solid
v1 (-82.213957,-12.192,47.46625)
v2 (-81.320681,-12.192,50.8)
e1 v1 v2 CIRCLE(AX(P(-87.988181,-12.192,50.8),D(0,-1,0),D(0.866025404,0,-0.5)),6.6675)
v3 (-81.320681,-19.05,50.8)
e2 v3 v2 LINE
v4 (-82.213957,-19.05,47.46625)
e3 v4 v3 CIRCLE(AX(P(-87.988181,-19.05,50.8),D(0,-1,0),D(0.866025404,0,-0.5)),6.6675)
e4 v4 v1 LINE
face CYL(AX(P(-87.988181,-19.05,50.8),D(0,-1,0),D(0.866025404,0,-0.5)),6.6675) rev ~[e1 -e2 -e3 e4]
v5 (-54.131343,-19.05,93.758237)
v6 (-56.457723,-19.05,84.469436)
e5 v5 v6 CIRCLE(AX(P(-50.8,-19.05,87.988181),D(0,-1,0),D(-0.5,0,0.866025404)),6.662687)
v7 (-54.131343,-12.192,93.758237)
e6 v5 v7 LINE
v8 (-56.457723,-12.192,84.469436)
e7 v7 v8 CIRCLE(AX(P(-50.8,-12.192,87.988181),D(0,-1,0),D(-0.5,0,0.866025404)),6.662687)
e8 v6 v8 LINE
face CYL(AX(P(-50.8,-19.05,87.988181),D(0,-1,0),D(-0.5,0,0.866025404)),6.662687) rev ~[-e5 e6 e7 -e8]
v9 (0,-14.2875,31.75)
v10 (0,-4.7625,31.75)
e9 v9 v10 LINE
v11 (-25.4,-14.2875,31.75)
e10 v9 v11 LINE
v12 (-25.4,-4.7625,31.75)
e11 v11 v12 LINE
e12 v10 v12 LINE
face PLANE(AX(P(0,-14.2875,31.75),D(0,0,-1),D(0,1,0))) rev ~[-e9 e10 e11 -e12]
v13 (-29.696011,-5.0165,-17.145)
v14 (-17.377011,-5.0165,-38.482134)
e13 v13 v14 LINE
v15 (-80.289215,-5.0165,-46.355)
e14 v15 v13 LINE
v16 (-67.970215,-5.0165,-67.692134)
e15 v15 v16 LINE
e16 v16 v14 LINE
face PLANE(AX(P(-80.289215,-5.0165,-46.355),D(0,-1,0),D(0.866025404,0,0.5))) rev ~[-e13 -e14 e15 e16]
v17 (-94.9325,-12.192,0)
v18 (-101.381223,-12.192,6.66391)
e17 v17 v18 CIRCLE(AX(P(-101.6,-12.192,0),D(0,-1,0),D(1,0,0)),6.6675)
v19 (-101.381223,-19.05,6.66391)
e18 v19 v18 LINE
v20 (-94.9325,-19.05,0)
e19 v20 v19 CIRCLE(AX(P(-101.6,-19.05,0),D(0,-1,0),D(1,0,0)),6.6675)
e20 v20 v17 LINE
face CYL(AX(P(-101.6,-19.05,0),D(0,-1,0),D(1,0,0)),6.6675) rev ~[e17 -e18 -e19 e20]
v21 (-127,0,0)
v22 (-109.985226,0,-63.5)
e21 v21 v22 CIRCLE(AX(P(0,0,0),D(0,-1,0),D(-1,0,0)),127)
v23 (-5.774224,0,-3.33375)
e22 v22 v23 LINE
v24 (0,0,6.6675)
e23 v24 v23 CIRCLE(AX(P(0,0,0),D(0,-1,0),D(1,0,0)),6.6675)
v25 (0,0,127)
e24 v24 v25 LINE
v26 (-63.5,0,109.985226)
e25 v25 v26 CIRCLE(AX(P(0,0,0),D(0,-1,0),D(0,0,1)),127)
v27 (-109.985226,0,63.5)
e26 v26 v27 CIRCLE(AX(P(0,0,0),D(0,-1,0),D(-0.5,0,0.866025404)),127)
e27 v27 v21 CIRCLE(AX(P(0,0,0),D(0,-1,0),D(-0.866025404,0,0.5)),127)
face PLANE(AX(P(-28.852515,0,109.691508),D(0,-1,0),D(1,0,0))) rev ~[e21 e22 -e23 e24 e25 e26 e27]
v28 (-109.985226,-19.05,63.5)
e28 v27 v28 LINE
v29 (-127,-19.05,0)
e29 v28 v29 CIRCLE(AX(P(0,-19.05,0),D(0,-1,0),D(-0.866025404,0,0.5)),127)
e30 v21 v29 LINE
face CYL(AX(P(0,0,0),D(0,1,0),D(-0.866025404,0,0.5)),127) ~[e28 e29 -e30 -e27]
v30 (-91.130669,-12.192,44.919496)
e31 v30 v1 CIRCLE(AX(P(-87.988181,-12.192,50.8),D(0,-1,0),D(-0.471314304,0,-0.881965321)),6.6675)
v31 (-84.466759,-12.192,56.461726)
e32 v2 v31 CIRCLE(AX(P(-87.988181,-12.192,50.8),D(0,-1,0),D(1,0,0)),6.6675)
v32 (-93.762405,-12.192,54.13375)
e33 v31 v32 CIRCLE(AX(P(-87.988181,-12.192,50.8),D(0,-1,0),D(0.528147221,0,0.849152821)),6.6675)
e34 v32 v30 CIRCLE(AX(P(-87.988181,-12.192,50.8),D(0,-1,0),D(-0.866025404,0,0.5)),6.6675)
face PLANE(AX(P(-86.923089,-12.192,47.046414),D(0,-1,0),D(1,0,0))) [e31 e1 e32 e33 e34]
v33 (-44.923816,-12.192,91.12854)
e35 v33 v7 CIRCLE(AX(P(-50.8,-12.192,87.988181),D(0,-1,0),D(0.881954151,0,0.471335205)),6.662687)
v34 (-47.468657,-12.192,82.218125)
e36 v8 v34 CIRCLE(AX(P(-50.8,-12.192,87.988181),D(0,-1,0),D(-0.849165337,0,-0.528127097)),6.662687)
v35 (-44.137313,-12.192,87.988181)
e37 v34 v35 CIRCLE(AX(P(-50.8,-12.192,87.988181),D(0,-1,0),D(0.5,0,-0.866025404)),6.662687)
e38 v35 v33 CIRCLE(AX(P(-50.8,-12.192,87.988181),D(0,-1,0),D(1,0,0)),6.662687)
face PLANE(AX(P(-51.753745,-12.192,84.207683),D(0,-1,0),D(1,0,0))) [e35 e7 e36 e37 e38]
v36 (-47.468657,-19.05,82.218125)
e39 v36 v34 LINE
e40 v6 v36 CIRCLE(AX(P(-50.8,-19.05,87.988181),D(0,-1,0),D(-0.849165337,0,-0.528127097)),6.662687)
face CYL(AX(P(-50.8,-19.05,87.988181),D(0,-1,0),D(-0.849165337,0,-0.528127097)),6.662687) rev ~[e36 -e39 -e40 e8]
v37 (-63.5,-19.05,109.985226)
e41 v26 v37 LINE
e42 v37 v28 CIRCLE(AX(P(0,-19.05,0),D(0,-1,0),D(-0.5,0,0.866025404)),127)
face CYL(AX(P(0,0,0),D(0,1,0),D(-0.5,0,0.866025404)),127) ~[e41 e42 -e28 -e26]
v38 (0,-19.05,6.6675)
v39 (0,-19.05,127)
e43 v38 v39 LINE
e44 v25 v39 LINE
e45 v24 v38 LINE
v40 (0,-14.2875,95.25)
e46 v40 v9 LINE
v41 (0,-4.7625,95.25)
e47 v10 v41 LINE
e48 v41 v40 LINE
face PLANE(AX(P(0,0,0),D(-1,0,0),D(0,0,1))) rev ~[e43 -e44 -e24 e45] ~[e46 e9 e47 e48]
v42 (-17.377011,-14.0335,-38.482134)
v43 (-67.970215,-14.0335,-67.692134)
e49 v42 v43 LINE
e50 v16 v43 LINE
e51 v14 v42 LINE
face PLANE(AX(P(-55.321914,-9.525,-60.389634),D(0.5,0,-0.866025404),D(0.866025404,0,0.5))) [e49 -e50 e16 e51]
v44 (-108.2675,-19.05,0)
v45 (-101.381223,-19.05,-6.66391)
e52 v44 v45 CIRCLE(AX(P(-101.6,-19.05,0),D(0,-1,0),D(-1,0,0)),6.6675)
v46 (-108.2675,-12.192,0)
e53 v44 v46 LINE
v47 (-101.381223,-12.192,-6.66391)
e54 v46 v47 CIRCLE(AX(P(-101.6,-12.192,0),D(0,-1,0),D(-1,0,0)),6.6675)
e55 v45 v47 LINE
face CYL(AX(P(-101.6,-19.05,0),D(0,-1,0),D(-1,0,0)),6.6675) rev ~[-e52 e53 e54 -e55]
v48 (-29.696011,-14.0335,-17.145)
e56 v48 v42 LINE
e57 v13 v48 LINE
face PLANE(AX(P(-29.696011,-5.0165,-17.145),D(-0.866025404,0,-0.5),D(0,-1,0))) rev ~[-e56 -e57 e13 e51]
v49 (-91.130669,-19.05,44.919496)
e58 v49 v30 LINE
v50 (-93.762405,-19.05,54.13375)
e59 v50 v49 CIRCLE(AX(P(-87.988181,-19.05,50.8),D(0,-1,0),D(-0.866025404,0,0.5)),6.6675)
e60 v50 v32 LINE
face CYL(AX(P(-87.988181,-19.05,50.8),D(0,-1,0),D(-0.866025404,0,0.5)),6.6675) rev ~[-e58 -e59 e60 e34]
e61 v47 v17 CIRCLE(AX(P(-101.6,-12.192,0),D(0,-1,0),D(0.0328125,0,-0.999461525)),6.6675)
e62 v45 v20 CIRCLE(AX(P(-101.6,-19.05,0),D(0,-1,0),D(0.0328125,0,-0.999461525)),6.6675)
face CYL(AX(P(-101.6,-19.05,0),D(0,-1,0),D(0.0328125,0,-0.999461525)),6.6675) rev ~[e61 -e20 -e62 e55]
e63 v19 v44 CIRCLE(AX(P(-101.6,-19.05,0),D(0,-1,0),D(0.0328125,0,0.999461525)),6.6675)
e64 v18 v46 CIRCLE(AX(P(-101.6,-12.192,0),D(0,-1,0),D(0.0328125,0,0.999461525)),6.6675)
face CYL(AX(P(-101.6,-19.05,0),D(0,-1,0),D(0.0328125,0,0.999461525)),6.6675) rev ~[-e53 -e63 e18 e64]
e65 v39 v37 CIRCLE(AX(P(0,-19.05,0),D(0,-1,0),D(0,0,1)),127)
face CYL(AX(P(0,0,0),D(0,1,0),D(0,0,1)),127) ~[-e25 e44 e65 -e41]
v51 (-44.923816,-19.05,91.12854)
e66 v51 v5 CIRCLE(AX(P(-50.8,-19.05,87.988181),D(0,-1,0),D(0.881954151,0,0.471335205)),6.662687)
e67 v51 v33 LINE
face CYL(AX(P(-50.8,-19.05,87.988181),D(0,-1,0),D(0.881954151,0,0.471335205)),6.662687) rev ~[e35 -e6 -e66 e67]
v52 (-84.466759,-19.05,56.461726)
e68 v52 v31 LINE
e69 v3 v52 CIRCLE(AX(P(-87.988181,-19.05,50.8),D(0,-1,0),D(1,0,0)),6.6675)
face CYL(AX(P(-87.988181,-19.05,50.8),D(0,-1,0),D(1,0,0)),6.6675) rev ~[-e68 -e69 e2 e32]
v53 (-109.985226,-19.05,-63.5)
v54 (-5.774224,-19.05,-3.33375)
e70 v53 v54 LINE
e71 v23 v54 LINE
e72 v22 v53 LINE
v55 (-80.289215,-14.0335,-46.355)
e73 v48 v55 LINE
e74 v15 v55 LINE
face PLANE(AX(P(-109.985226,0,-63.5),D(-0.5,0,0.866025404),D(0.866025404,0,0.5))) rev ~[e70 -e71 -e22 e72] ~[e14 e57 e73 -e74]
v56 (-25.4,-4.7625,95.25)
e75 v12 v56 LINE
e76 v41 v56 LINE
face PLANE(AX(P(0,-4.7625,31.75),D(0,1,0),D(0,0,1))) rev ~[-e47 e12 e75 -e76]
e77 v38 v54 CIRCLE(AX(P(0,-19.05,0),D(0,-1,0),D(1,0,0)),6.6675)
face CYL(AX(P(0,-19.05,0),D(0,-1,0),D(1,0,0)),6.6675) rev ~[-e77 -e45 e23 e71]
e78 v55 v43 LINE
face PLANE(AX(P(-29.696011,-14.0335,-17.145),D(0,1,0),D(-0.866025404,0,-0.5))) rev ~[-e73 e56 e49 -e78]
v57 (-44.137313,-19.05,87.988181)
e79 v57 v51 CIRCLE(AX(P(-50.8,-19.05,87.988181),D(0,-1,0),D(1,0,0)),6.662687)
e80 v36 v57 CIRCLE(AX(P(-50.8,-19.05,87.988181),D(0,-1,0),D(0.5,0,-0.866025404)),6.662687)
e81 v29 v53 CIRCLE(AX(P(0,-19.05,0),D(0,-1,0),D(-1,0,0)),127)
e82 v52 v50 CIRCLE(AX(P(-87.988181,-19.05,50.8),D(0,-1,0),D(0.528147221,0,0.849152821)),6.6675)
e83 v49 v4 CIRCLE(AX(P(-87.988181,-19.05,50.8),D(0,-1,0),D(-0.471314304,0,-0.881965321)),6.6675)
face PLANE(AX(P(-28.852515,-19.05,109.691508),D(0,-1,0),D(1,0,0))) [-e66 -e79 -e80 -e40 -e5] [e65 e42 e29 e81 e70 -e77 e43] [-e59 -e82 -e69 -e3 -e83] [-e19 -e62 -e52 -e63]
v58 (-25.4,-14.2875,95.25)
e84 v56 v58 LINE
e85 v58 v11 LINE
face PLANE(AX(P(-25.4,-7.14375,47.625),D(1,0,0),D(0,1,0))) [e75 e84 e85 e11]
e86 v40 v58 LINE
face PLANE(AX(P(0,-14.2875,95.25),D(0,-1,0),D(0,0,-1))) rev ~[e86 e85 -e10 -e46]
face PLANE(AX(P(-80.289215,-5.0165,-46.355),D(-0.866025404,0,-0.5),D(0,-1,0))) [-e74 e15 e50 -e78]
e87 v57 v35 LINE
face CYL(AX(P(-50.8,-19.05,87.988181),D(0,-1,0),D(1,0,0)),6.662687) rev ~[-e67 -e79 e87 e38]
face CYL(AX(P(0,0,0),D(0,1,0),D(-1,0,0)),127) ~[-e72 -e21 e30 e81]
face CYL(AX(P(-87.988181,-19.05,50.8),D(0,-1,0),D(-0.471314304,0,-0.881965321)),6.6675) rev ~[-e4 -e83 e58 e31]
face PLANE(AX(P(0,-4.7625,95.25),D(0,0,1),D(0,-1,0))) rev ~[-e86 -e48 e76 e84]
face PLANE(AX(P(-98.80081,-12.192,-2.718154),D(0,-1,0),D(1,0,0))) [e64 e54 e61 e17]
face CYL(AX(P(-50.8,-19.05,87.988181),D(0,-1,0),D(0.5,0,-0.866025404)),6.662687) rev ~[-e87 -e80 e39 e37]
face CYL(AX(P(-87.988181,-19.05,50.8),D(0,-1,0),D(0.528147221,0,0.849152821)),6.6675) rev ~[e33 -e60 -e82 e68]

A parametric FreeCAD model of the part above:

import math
import FreeCAD as App
import Part
import Sketcher

V = App.Vector
Q = App.Units.Quantity

doc = App.newDocument("Part")
body = doc.addObject("PartDesign::Body", "Body")

sketch1 = body.newObject("Sketcher::SketchObject", "Sketch")
sketch1.AttachmentSupport = (doc.getObject("XZ_Plane"), [""])
sketch1.MapMode = "FlatFace"
sketch1.addGeometry(Part.LineSegment(V(-110, -64, 0), V(0, 0, 0)), False)
sketch1.addGeometry(Part.LineSegment(V(0, 0, 0), V(0, 127, 0)), False)
sketch1.addGeometry(Part.ArcOfCircle(Part.Circle(V(0, 0, 0), V(0, 0, 1), 127), math.radians(90), math.radians(120)), False)
sketch1.addGeometry(Part.ArcOfCircle(Part.Circle(V(0, 0, 0), V(0, 0, 1), 127), math.radians(120), math.radians(150)), False)
sketch1.addGeometry(Part.ArcOfCircle(Part.Circle(V(0, 0, 0), V(0, 0, 1), 127), math.radians(150), math.radians(180)), False)
sketch1.addGeometry(Part.ArcOfCircle(Part.Circle(V(0, 0, 0), V(0, 0, 1), 127), math.radians(180), math.radians(210)), False)
sketch1.addConstraint(Sketcher.Constraint("Coincident", 0, 2, 1, 1))
sketch1.addConstraint(Sketcher.Constraint("Coincident", 1, 2, 2, 1))
sketch1.addConstraint(Sketcher.Constraint("Tangent", 2, 2, 3, 1))
sketch1.addConstraint(Sketcher.Constraint("Tangent", 3, 2, 4, 1))
sketch1.addConstraint(Sketcher.Constraint("Tangent", 4, 2, 5, 1))
sketch1.addConstraint(Sketcher.Constraint("Coincident", 5, 2, 0, 1))
sketch1.addConstraint(Sketcher.Constraint("Vertical", 1))
sketch1.addConstraint(Sketcher.Constraint("Coincident", 2, 3, -1, 1))
sketch1.addConstraint(Sketcher.Constraint("Coincident", 4, 3, -1, 1))
sketch1.addConstraint(Sketcher.Constraint("Coincident", 0, 2, -1, 1))
sketch1.addConstraint(Sketcher.Constraint("Equal", 4, 5))
sketch1.addConstraint(Sketcher.Constraint("PointOnObject", 4, 2, -1))
sketch1.addConstraint(Sketcher.Constraint("Vertical", 3, 2, 5, 2))
sketch1.addConstraint(Sketcher.Constraint("Radius", 2, Q("5 in")))
sketch1.addConstraint(Sketcher.Constraint("Angle", 0, Q("30 deg")))
sketch1.addConstraint(Sketcher.Constraint("DistanceX", 2, 2, -1, 1, Q("2.5 in")))
pad1 = body.newObject("PartDesign::Pad", "Pad")
pad1.Profile = sketch1
pad1.Length = Q("0.75 in")

sketch2 = body.newObject("Sketcher::SketchObject", "Sketch001")
sketch2.AttachmentSupport = (doc.getObject("YZ_Plane"), [""])
sketch2.MapMode = "FlatFace"
sketch2.addGeometry(Part.LineSegment(V(-5, 32, 0), V(-5, 95, 0)), False)
sketch2.addGeometry(Part.LineSegment(V(-5, 95, 0), V(-14, 95, 0)), False)
sketch2.addGeometry(Part.LineSegment(V(-14, 95, 0), V(-14, 32, 0)), False)
sketch2.addGeometry(Part.LineSegment(V(-14, 32, 0), V(-5, 32, 0)), False)
sketch2.addConstraint(Sketcher.Constraint("Coincident", 0, 2, 1, 1))
sketch2.addConstraint(Sketcher.Constraint("Coincident", 1, 2, 2, 1))
sketch2.addConstraint(Sketcher.Constraint("Coincident", 2, 2, 3, 1))
sketch2.addConstraint(Sketcher.Constraint("Coincident", 3, 2, 0, 1))
sketch2.addConstraint(Sketcher.Constraint("Vertical", 0))
sketch2.addConstraint(Sketcher.Constraint("Horizontal", 1))
sketch2.addConstraint(Sketcher.Constraint("Vertical", 2))
sketch2.addConstraint(Sketcher.Constraint("Horizontal", 3))
sketch2.addConstraint(Sketcher.Constraint("DistanceY", 0, 1, 0, 2, Q("2.5 in")))
sketch2.addConstraint(Sketcher.Constraint("DistanceX", 1, 2, 1, 1, Q("0.375 in")))
sketch2.addConstraint(Sketcher.Constraint("DistanceY", -1, 1, 0, 2, Q("3.75 in")))
sketch2.addConstraint(Sketcher.Constraint("DistanceX", 0, 2, -1, 1, Q("0.1875 in")))
pocket1 = body.newObject("PartDesign::Pocket", "Pocket")
pocket1.Profile = sketch2
pocket1.Length = Q("1 in")

sketch3 = body.newObject("Sketcher::SketchObject", "Sketch002")
sketch3.Placement = App.Placement(V(0, 0, 0), App.Rotation(V(0.866025404, 0, 0.5), V(0, -1, 0), V(0.5, 0, -0.866025404), "ZXY"))
sketch3.addGeometry(Part.LineSegment(V(-93, 14, 0), V(-93, 5, 0)), False)
sketch3.addGeometry(Part.LineSegment(V(-93, 5, 0), V(-34, 5, 0)), False)
sketch3.addGeometry(Part.LineSegment(V(-34, 5, 0), V(-34, 14, 0)), False)
sketch3.addGeometry(Part.LineSegment(V(-34, 14, 0), V(-93, 14, 0)), False)
sketch3.addConstraint(Sketcher.Constraint("Coincident", 0, 2, 1, 1))
sketch3.addConstraint(Sketcher.Constraint("Coincident", 1, 2, 2, 1))
sketch3.addConstraint(Sketcher.Constraint("Coincident", 2, 2, 3, 1))
sketch3.addConstraint(Sketcher.Constraint("Coincident", 3, 2, 0, 1))
sketch3.addConstraint(Sketcher.Constraint("Vertical", 0))
sketch3.addConstraint(Sketcher.Constraint("Horizontal", 1))
sketch3.addConstraint(Sketcher.Constraint("Vertical", 2))
sketch3.addConstraint(Sketcher.Constraint("Horizontal", 3))
sketch3.addConstraint(Sketcher.Constraint("DistanceX", 1, 1, 1, 2, Q("2.3 in")))
sketch3.addConstraint(Sketcher.Constraint("DistanceY", 0, 2, 0, 1, Q("0.355 in")))
sketch3.addConstraint(Sketcher.Constraint("DistanceX", 0, 2, -1, 1, Q("3.65 in")))
sketch3.addConstraint(Sketcher.Constraint("DistanceY", -1, 1, 0, 2, Q("0.1975 in")))
pad2 = body.newObject("PartDesign::Pad", "Pad001")
pad2.Profile = sketch3
pad2.Length = Q("0.97 in")

sketch4 = body.newObject("Sketcher::SketchObject", "Sketch003")
sketch4.AttachmentSupport = (doc.getObject("XZ_Plane"), [""])
sketch4.MapMode = "FlatFace"
sketch4.AttachmentOffset = App.Placement(V(0, 0, 0.75 * 25.4), App.Rotation())
sketch4.addGeometry(Part.ArcOfCircle(Part.Circle(V(-101.6, 0, 0), V(0, 0, 1), 6.7), math.radians(-88), math.radians(0)), False)
sketch4.addGeometry(Part.ArcOfCircle(Part.Circle(V(-101.6, 0, 0), V(0, 0, 1), 6.7), math.radians(0), math.radians(88)), False)
sketch4.addGeometry(Part.ArcOfCircle(Part.Circle(V(-101.6, 0, 0), V(0, 0, 1), 6.7), math.radians(88), math.radians(180)), False)
sketch4.addGeometry(Part.ArcOfCircle(Part.Circle(V(-101.6, 0, 0), V(0, 0, 1), 6.7), math.radians(180), math.radians(272)), False)
sketch4.addGeometry(Part.ArcOfCircle(Part.Circle(V(-88, 50.8, 0), V(0, 0, 1), 6.7), math.radians(-118), math.radians(-30)), False)
sketch4.addGeometry(Part.ArcOfCircle(Part.Circle(V(-88, 50.8, 0), V(0, 0, 1), 6.7), math.radians(-30), math.radians(0)), False)
sketch4.addGeometry(Part.ArcOfCircle(Part.Circle(V(-88, 50.8, 0), V(0, 0, 1), 6.7), math.radians(0), math.radians(58)), False)
sketch4.addGeometry(Part.ArcOfCircle(Part.Circle(V(-88, 50.8, 0), V(0, 0, 1), 6.7), math.radians(58), math.radians(150)), False)
sketch4.addGeometry(Part.ArcOfCircle(Part.Circle(V(-88, 50.8, 0), V(0, 0, 1), 6.7), math.radians(150), math.radians(242)), False)
sketch4.addGeometry(Part.ArcOfCircle(Part.Circle(V(-50.8, 88, 0), V(0, 0, 1), 6.7), math.radians(-148), math.radians(-60)), False)
sketch4.addGeometry(Part.ArcOfCircle(Part.Circle(V(-50.8, 88, 0), V(0, 0, 1), 6.7), math.radians(-60), math.radians(0)), False)
sketch4.addGeometry(Part.ArcOfCircle(Part.Circle(V(-50.8, 88, 0), V(0, 0, 1), 6.7), math.radians(0), math.radians(28)), False)
sketch4.addGeometry(Part.ArcOfCircle(Part.Circle(V(-50.8, 88, 0), V(0, 0, 1), 6.7), math.radians(28), math.radians(120)), False)
sketch4.addGeometry(Part.ArcOfCircle(Part.Circle(V(-50.8, 88, 0), V(0, 0, 1), 6.7), math.radians(120), math.radians(212)), False)
sketch4.addConstraint(Sketcher.Constraint("Tangent", 0, 2, 1, 1))
sketch4.addConstraint(Sketcher.Constraint("Tangent", 1, 2, 2, 1))
sketch4.addConstraint(Sketcher.Constraint("Tangent", 2, 2, 3, 1))
sketch4.addConstraint(Sketcher.Constraint("Tangent", 3, 2, 0, 1))
sketch4.addConstraint(Sketcher.Constraint("Tangent", 4, 2, 5, 1))
sketch4.addConstraint(Sketcher.Constraint("Tangent", 5, 2, 6, 1))
sketch4.addConstraint(Sketcher.Constraint("Tangent", 6, 2, 7, 1))
sketch4.addConstraint(Sketcher.Constraint("Tangent", 7, 2, 8, 1))
sketch4.addConstraint(Sketcher.Constraint("Tangent", 8, 2, 4, 1))
sketch4.addConstraint(Sketcher.Constraint("Tangent", 9, 2, 10, 1))
sketch4.addConstraint(Sketcher.Constraint("Tangent", 10, 2, 11, 1))
sketch4.addConstraint(Sketcher.Constraint("Tangent", 11, 2, 12, 1))
sketch4.addConstraint(Sketcher.Constraint("Tangent", 12, 2, 13, 1))
sketch4.addConstraint(Sketcher.Constraint("Tangent", 13, 2, 9, 1))
sketch4.addConstraint(Sketcher.Constraint("Coincident", 6, 3, 4, 3))
sketch4.addConstraint(Sketcher.Constraint("Coincident", 11, 3, 9, 3))
sketch4.addConstraint(Sketcher.Constraint("Equal", 0, 1))
sketch4.addConstraint(Sketcher.Constraint("Equal", 3, 4))
sketch4.addConstraint(Sketcher.Constraint("Symmetric", 1, 2, 3, 2, -1))
sketch4.addConstraint(Sketcher.Constraint("PointOnObject", 0, 2, -1))
sketch4.addConstraint(Sketcher.Constraint("PointOnObject", 2, 2, -1))
sketch4.addConstraint(Sketcher.Constraint("Horizontal", 8, 3, 5, 2))
sketch4.addConstraint(Sketcher.Constraint("Horizontal", 13, 3, 10, 2))
sketch4.addConstraint(Sketcher.Constraint("DistanceX", 0, 3, -1, 1, Q("4 in")))
sketch4.addConstraint(Sketcher.Constraint("DistanceY", -1, 1, 4, 3, Q("2 in")))
sketch4.addConstraint(Sketcher.Constraint("DistanceX", 9, 3, -1, 1, Q("2 in")))
sketch4.addConstraint(Sketcher.Constraint("Radius", 0, Q("0.2625 in")))
sketch4.addConstraint(Sketcher.Constraint("Radius", 9, Q("6.662687 mm")))
sketch4.addConstraint(Sketcher.Constraint("DistanceX", 4, 3, -1, 1, Q("87.988181 mm")))
sketch4.addConstraint(Sketcher.Constraint("DistanceY", -1, 1, 9, 3, Q("87.988181 mm")))
sketch4.addConstraint(Sketcher.Constraint("DistanceY", -1, 1, 1, 2, Q("6.66391 mm")))
sketch4.addConstraint(Sketcher.Constraint("DistanceY", -1, 1, 4, 2, Q("47.46625 mm")))
sketch4.addConstraint(Sketcher.Constraint("DistanceX", 6, 2, -1, 1, Q("84.466759 mm")))
sketch4.addConstraint(Sketcher.Constraint("DistanceY", -1, 1, 7, 2, Q("54.13375 mm")))
sketch4.addConstraint(Sketcher.Constraint("DistanceX", 8, 2, -1, 1, Q("91.130669 mm")))
sketch4.addConstraint(Sketcher.Constraint("DistanceY", -1, 1, 11, 2, Q("91.12854 mm")))
sketch4.addConstraint(Sketcher.Constraint("DistanceX", 9, 2, -1, 1, Q("47.468657 mm")))
sketch4.addConstraint(Sketcher.Constraint("DistanceX", 12, 2, -1, 1, Q("54.131343 mm")))
sketch4.addConstraint(Sketcher.Constraint("DistanceX", 13, 2, -1, 1, Q("56.457723 mm")))
pocket2 = body.newObject("PartDesign::Pocket", "Pocket001")
pocket2.Profile = sketch4
pocket2.Length = Q("0.27 in")

sketch5 = body.newObject("Sketcher::SketchObject", "Sketch004")
sketch5.AttachmentSupport = (doc.getObject("XZ_Plane"), [""])
sketch5.MapMode = "FlatFace"
sketch5.AttachmentOffset = App.Placement(V(0, 0, 0.75 * 25.4), App.Rotation())
sketch5.addGeometry(Part.Circle(V(0, 0, 0), V(0, 0, 1), 7), False)
sketch5.addConstraint(Sketcher.Constraint("Coincident", 0, 3, -1, 1))
sketch5.addConstraint(Sketcher.Constraint("Diameter", 0, Q("0.525 in")))
pocket3 = body.newObject("PartDesign::Pocket", "Pocket002")
pocket3.Profile = sketch5
pocket3.Length = Q("1 in")

doc.recompute()
